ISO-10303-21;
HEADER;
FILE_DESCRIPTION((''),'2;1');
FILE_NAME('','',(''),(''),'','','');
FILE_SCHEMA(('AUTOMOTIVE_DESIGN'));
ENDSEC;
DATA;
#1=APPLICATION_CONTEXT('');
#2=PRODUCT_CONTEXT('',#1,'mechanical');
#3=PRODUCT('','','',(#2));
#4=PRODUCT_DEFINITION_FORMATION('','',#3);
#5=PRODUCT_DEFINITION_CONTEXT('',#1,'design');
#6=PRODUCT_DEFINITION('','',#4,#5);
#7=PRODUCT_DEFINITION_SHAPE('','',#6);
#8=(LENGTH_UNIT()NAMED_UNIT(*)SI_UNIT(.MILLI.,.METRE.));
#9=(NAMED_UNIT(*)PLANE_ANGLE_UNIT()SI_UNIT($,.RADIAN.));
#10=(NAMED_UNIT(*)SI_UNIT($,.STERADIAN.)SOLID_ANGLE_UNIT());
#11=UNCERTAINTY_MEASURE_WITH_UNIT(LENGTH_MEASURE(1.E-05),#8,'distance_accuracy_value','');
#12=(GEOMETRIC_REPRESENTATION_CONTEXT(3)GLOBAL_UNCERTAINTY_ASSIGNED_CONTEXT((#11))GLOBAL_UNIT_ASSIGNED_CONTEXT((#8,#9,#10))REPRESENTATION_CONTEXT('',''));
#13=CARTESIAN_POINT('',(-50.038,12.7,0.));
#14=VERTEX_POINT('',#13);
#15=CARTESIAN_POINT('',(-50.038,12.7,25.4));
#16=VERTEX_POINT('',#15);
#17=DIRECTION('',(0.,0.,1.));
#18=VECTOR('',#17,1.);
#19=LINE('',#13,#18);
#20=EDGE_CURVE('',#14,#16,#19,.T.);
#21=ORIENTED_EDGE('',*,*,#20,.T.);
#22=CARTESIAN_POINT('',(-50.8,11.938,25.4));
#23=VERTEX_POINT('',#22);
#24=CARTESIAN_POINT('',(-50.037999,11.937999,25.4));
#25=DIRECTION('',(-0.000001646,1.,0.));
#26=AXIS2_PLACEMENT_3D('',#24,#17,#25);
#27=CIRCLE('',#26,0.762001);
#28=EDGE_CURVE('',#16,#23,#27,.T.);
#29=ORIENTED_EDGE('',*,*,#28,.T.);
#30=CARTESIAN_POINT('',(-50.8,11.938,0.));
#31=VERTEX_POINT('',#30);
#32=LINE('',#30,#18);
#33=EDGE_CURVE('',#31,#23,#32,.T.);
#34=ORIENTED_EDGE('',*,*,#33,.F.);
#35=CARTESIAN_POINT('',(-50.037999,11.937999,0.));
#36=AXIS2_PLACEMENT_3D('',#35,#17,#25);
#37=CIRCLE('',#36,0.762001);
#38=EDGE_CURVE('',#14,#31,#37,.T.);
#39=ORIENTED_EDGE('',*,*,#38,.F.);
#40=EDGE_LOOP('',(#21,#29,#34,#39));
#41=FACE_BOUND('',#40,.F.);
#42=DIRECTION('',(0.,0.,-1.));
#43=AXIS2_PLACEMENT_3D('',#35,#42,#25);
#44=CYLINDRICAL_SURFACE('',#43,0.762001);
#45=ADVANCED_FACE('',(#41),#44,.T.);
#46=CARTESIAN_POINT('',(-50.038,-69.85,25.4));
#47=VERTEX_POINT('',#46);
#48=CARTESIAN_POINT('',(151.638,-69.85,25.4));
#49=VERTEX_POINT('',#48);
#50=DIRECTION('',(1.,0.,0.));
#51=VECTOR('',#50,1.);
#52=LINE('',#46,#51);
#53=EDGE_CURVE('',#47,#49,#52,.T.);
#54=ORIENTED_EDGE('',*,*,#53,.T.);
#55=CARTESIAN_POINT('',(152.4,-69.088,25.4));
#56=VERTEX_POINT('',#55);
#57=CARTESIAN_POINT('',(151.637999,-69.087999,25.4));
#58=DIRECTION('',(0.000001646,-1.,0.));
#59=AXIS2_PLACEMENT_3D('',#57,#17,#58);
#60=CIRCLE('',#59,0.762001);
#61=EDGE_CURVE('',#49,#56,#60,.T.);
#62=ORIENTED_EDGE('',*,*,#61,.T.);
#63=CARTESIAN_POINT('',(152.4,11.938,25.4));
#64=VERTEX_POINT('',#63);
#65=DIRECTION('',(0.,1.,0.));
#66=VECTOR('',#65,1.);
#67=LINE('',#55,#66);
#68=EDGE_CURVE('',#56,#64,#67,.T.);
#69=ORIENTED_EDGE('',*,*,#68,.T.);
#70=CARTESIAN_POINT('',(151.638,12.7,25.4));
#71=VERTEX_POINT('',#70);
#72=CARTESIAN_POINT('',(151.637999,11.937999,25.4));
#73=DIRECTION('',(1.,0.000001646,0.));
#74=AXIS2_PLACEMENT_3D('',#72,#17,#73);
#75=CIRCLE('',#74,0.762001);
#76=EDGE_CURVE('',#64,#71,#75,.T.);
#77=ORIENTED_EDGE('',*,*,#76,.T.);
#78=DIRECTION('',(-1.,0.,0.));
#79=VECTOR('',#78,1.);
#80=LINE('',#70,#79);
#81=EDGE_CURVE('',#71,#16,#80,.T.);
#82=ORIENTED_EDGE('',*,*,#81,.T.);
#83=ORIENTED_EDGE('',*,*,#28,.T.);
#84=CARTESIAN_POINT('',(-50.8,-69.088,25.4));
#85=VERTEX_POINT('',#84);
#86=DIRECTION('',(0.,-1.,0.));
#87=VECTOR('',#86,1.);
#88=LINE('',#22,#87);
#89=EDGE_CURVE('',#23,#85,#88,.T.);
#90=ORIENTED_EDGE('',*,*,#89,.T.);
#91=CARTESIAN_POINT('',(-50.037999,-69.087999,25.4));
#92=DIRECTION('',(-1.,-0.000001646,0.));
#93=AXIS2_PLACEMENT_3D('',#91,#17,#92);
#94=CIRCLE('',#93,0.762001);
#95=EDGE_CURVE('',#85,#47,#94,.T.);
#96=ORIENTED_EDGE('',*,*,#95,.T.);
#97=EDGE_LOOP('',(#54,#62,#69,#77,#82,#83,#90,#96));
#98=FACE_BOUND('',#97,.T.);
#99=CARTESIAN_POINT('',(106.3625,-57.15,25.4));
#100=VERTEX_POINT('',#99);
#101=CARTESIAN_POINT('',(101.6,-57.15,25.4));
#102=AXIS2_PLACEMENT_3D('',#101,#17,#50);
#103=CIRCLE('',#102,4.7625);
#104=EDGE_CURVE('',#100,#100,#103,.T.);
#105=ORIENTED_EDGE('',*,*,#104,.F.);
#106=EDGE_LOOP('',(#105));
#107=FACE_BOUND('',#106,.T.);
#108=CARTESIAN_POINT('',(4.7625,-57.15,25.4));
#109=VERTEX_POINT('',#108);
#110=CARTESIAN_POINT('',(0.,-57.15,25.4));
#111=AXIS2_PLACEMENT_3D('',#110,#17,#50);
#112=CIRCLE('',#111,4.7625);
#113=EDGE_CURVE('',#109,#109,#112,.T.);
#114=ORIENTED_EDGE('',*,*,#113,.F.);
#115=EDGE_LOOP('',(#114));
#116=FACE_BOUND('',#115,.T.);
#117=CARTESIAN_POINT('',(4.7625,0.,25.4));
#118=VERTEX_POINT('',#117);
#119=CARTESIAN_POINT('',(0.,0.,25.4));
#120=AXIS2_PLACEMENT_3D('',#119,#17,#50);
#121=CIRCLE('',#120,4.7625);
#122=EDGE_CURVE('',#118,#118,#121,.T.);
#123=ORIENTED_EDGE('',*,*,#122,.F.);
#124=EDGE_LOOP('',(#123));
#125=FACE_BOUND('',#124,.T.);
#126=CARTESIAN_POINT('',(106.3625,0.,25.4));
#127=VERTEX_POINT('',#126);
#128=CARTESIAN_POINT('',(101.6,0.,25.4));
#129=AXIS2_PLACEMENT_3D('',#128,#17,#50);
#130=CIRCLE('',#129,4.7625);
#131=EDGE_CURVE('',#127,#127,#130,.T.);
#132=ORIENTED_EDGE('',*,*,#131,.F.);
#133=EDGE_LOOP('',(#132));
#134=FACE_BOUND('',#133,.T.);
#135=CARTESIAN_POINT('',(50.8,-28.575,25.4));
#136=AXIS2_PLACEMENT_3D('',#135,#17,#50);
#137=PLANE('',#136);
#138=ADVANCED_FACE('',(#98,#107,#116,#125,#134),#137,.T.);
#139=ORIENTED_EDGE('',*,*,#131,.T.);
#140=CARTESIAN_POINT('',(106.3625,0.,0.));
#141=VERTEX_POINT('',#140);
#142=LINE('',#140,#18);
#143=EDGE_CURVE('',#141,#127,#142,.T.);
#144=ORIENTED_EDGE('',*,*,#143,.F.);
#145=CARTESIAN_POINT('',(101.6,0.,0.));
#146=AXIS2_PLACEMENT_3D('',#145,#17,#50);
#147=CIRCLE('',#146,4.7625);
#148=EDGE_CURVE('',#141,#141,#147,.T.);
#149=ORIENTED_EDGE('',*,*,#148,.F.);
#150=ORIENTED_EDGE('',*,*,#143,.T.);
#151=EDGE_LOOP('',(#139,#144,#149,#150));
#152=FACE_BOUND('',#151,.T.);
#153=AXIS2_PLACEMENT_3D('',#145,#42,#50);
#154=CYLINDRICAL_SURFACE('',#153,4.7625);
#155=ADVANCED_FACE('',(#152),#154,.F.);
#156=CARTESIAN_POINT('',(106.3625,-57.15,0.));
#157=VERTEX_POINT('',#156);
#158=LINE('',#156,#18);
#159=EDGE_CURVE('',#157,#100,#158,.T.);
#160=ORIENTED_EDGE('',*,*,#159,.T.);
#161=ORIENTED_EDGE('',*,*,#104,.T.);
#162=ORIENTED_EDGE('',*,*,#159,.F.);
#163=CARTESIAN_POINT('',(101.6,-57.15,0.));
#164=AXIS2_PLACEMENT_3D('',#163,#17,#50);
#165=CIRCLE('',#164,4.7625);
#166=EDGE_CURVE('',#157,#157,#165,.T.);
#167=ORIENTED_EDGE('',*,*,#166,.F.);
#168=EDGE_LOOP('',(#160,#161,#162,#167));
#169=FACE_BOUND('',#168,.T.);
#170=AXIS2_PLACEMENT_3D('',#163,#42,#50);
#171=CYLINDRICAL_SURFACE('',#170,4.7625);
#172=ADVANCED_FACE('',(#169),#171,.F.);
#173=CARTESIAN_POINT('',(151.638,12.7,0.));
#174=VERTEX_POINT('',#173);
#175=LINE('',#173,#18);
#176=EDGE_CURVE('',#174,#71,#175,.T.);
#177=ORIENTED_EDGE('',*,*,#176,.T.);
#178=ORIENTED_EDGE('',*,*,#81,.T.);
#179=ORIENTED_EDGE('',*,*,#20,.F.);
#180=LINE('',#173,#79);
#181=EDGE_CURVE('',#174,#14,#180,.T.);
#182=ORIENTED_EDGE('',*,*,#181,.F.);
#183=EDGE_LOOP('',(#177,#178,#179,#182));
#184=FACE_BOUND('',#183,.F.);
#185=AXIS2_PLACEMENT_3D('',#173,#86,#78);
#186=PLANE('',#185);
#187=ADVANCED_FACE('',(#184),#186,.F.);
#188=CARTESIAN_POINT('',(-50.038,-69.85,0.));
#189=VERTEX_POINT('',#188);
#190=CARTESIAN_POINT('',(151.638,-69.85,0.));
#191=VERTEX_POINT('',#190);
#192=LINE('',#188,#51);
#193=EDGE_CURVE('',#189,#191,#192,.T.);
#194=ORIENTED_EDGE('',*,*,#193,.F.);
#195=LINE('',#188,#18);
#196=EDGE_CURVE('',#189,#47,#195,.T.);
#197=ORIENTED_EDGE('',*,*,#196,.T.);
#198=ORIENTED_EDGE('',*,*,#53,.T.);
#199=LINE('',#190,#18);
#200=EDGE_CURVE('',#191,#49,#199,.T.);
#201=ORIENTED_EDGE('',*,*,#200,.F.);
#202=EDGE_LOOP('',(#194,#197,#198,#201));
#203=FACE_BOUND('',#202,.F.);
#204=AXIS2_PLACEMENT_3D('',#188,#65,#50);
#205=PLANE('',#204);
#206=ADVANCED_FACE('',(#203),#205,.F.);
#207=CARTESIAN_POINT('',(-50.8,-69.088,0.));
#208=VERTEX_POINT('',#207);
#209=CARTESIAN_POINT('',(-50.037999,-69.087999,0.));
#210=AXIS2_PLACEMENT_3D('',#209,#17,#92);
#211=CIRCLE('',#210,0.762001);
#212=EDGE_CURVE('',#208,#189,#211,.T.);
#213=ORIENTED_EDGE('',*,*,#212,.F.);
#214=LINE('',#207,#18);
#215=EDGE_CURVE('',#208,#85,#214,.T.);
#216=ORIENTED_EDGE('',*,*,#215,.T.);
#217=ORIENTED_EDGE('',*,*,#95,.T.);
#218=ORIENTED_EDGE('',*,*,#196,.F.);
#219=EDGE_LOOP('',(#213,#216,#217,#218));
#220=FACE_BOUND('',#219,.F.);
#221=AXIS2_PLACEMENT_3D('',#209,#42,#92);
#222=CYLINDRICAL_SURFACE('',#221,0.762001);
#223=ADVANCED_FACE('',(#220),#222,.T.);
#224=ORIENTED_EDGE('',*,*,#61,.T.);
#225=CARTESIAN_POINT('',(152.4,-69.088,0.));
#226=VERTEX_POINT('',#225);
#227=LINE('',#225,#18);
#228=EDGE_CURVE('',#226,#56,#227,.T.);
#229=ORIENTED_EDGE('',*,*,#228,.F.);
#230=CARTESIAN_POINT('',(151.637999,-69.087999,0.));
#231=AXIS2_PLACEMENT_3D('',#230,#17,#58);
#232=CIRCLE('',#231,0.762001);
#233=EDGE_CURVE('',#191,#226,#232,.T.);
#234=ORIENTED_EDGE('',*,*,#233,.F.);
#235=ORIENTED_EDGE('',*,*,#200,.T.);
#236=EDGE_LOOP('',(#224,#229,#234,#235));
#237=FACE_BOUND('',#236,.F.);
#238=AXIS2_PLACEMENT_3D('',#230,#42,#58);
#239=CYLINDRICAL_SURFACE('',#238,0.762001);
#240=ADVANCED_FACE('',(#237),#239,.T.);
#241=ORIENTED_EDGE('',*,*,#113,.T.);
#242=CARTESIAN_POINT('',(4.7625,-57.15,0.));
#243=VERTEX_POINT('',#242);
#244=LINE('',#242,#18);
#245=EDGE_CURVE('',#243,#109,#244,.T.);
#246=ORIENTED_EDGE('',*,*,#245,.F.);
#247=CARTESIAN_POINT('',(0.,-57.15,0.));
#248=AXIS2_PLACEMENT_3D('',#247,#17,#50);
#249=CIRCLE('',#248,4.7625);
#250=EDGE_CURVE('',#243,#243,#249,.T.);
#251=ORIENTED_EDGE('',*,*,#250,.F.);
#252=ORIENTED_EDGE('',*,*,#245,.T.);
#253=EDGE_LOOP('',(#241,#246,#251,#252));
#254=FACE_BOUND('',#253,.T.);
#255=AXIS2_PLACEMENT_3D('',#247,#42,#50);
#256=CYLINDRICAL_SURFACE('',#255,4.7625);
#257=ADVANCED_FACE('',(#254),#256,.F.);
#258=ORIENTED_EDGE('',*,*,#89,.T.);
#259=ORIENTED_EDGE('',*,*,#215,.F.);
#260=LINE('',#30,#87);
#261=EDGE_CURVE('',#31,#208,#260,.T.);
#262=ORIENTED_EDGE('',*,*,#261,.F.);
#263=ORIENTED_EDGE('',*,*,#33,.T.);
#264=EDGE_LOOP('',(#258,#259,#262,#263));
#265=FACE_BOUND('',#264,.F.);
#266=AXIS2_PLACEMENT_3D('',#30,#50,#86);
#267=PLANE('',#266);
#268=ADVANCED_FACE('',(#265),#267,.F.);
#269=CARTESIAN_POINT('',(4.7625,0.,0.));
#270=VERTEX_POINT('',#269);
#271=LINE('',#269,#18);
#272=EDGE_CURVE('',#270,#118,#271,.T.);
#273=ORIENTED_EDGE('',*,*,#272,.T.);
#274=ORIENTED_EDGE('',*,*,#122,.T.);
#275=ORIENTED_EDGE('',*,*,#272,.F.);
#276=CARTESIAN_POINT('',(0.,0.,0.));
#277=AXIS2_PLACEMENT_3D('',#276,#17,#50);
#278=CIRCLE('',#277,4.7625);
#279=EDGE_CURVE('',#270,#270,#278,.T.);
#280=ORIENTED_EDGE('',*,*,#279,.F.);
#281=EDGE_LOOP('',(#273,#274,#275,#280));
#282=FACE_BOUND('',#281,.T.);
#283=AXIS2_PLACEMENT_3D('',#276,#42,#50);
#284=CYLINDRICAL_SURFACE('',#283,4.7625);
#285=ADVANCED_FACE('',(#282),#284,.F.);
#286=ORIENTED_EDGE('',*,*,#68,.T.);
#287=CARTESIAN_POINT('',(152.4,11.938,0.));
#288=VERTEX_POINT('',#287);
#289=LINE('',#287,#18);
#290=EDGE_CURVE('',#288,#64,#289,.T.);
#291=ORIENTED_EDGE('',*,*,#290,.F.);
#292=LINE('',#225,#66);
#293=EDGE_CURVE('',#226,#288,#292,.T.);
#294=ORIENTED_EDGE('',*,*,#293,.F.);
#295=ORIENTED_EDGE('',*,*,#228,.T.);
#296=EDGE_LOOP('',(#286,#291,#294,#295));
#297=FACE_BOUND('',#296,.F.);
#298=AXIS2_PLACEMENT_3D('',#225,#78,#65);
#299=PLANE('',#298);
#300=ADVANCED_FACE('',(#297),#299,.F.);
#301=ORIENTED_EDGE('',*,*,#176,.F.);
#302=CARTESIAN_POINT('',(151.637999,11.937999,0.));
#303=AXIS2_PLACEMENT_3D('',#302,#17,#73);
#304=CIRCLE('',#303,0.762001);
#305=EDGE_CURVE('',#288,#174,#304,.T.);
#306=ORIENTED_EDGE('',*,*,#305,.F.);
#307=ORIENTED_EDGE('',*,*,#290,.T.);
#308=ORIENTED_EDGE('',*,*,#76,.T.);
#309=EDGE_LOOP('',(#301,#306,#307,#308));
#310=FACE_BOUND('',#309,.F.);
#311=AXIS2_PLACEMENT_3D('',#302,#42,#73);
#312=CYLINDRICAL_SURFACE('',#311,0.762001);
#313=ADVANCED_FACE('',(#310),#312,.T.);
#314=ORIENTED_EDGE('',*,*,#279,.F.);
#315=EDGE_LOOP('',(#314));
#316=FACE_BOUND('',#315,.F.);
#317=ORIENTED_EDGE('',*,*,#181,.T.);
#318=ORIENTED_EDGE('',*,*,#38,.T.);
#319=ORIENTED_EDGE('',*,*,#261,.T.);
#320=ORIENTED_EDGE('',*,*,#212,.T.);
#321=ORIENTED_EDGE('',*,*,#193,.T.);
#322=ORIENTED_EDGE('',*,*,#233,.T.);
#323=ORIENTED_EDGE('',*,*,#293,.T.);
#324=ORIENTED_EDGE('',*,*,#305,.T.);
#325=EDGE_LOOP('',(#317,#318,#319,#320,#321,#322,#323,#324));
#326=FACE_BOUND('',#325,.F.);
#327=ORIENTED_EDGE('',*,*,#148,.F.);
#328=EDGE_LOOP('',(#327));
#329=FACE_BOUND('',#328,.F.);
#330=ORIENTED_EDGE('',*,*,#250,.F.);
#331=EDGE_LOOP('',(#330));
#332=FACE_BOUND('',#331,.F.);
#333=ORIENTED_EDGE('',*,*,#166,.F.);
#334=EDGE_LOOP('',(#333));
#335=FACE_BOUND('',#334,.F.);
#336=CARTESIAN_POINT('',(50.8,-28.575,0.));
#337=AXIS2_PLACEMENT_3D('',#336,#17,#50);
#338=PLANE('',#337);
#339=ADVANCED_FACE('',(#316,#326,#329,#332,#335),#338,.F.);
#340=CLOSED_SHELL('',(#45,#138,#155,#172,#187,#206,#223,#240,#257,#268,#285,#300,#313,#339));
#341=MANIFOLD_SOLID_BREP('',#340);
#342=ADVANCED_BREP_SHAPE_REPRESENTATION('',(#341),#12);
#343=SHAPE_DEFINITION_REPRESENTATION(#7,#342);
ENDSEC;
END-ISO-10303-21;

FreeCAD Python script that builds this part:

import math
import FreeCAD as App
import Part
import Sketcher
Q = App.Units.Quantity

doc = App.newDocument("Part")
body = doc.addObject("PartDesign::Body", "Body")

# Sketch on XY plane
sketch1 = body.newObject("Sketcher::SketchObject", "Sketch")
sketch1.AttachmentSupport = (doc.getObject("XY_Plane"), [""])
sketch1.MapMode = "FlatFace"
sketch1.addGeometry(Part.LineSegment(App.Vector(151.6, 12.7, 0), App.Vector(-50, 12.7, 0)), False)
sketch1.addGeometry(Part.ArcOfCircle(Part.Circle(App.Vector(-50, 11.9, 0), App.Vector(0, 0, 1), 0.8), math.radians(90), math.radians(180)), False)
sketch1.addGeometry(Part.LineSegment(App.Vector(-50.8, 11.9, 0), App.Vector(-50.8, -69.1, 0)), False)
sketch1.addGeometry(Part.ArcOfCircle(Part.Circle(App.Vector(-50, -69.1, 0), App.Vector(0, 0, 1), 0.8), math.radians(-180), math.radians(-90)), False)
sketch1.addGeometry(Part.LineSegment(App.Vector(-50, -69.8, 0), App.Vector(151.6, -69.8, 0)), False)
sketch1.addGeometry(Part.ArcOfCircle(Part.Circle(App.Vector(151.6, -69.1, 0), App.Vector(0, 0, 1), 0.8), math.radians(-90), math.radians(0)), False)
sketch1.addGeometry(Part.LineSegment(App.Vector(152.4, -69.1, 0), App.Vector(152.4, 11.9, 0)), False)
sketch1.addGeometry(Part.ArcOfCircle(Part.Circle(App.Vector(151.6, 11.9, 0), App.Vector(0, 0, 1), 0.8), math.radians(0), math.radians(90)), False)
sketch1.addGeometry(Part.Circle(App.Vector(0, -57.1, 0), App.Vector(0, 0, 1), 4.8), False)
sketch1.addGeometry(Part.Circle(App.Vector(101.6, -57.1, 0), App.Vector(0, 0, 1), 4.8), False)
sketch1.addGeometry(Part.Circle(App.Vector(0, 0, 0), App.Vector(0, 0, 1), 4.8), False)
sketch1.addGeometry(Part.Circle(App.Vector(101.6, 0, 0), App.Vector(0, 0, 1), 4.8), False)
sketch1.addConstraint(Sketcher.Constraint("Tangent", 0, 2, 1, 1))
sketch1.addConstraint(Sketcher.Constraint("Tangent", 1, 2, 2, 1))
sketch1.addConstraint(Sketcher.Constraint("Tangent", 2, 2, 3, 1))
sketch1.addConstraint(Sketcher.Constraint("Tangent", 3, 2, 4, 1))
sketch1.addConstraint(Sketcher.Constraint("Tangent", 4, 2, 5, 1))
sketch1.addConstraint(Sketcher.Constraint("Tangent", 5, 2, 6, 1))
sketch1.addConstraint(Sketcher.Constraint("Tangent", 6, 2, 7, 1))
sketch1.addConstraint(Sketcher.Constraint("Tangent", 7, 2, 0, 1))
sketch1.addConstraint(Sketcher.Constraint("Horizontal", 0))
sketch1.addConstraint(Sketcher.Constraint("Vertical", 2))
sketch1.addConstraint(Sketcher.Constraint("Horizontal", 4))
sketch1.addConstraint(Sketcher.Constraint("Vertical", 6))
sketch1.addConstraint(Sketcher.Constraint("Coincident", 10, 3, -1, 1))
sketch1.addConstraint(Sketcher.Constraint("Equal", 1, 3))
sketch1.addConstraint(Sketcher.Constraint("Equal", 3, 5))
sketch1.addConstraint(Sketcher.Constraint("Equal", 5, 7))
sketch1.addConstraint(Sketcher.Constraint("Equal", 8, 9))
sketch1.addConstraint(Sketcher.Constraint("Equal", 9, 10))
sketch1.addConstraint(Sketcher.Constraint("Equal", 10, 11))
sketch1.addConstraint(Sketcher.Constraint("PointOnObject", 8, 3, -2))
sketch1.addConstraint(Sketcher.Constraint("PointOnObject", 11, 3, -1))
sketch1.addConstraint(Sketcher.Constraint("Horizontal", 8, 3, 9, 3))
sketch1.addConstraint(Sketcher.Constraint("Vertical", 9, 3, 11, 3))
sketch1.addConstraint(Sketcher.Constraint("Radius", 1, Q("0.03 in")))
sketch1.addConstraint(Sketcher.Constraint("Diameter", 8, Q("0.375 in")))
sketch1.addConstraint(Sketcher.Constraint("DistanceX", -1, 1, 9, 3, Q("4 in")))
sketch1.addConstraint(Sketcher.Constraint("DistanceX", 1, 2, -1, 1, Q("2 in")))
sketch1.addConstraint(Sketcher.Constraint("DistanceX", -1, 1, 5, 2, Q("6 in")))
sketch1.addConstraint(Sketcher.Constraint("DistanceY", 2, 2, 2, 1, Q("3.19 in")))
sketch1.addConstraint(Sketcher.Constraint("DistanceY", -1, 1, 0, 2, Q("0.5 in")))
sketch1.addConstraint(Sketcher.Constraint("DistanceY", 3, 2, 8, 3, Q("0.5 in")))
pad1 = body.newObject("PartDesign::Pad", "Pad")
pad1.Profile = sketch1
pad1.Length = Q("1 in")

doc.recompute()
